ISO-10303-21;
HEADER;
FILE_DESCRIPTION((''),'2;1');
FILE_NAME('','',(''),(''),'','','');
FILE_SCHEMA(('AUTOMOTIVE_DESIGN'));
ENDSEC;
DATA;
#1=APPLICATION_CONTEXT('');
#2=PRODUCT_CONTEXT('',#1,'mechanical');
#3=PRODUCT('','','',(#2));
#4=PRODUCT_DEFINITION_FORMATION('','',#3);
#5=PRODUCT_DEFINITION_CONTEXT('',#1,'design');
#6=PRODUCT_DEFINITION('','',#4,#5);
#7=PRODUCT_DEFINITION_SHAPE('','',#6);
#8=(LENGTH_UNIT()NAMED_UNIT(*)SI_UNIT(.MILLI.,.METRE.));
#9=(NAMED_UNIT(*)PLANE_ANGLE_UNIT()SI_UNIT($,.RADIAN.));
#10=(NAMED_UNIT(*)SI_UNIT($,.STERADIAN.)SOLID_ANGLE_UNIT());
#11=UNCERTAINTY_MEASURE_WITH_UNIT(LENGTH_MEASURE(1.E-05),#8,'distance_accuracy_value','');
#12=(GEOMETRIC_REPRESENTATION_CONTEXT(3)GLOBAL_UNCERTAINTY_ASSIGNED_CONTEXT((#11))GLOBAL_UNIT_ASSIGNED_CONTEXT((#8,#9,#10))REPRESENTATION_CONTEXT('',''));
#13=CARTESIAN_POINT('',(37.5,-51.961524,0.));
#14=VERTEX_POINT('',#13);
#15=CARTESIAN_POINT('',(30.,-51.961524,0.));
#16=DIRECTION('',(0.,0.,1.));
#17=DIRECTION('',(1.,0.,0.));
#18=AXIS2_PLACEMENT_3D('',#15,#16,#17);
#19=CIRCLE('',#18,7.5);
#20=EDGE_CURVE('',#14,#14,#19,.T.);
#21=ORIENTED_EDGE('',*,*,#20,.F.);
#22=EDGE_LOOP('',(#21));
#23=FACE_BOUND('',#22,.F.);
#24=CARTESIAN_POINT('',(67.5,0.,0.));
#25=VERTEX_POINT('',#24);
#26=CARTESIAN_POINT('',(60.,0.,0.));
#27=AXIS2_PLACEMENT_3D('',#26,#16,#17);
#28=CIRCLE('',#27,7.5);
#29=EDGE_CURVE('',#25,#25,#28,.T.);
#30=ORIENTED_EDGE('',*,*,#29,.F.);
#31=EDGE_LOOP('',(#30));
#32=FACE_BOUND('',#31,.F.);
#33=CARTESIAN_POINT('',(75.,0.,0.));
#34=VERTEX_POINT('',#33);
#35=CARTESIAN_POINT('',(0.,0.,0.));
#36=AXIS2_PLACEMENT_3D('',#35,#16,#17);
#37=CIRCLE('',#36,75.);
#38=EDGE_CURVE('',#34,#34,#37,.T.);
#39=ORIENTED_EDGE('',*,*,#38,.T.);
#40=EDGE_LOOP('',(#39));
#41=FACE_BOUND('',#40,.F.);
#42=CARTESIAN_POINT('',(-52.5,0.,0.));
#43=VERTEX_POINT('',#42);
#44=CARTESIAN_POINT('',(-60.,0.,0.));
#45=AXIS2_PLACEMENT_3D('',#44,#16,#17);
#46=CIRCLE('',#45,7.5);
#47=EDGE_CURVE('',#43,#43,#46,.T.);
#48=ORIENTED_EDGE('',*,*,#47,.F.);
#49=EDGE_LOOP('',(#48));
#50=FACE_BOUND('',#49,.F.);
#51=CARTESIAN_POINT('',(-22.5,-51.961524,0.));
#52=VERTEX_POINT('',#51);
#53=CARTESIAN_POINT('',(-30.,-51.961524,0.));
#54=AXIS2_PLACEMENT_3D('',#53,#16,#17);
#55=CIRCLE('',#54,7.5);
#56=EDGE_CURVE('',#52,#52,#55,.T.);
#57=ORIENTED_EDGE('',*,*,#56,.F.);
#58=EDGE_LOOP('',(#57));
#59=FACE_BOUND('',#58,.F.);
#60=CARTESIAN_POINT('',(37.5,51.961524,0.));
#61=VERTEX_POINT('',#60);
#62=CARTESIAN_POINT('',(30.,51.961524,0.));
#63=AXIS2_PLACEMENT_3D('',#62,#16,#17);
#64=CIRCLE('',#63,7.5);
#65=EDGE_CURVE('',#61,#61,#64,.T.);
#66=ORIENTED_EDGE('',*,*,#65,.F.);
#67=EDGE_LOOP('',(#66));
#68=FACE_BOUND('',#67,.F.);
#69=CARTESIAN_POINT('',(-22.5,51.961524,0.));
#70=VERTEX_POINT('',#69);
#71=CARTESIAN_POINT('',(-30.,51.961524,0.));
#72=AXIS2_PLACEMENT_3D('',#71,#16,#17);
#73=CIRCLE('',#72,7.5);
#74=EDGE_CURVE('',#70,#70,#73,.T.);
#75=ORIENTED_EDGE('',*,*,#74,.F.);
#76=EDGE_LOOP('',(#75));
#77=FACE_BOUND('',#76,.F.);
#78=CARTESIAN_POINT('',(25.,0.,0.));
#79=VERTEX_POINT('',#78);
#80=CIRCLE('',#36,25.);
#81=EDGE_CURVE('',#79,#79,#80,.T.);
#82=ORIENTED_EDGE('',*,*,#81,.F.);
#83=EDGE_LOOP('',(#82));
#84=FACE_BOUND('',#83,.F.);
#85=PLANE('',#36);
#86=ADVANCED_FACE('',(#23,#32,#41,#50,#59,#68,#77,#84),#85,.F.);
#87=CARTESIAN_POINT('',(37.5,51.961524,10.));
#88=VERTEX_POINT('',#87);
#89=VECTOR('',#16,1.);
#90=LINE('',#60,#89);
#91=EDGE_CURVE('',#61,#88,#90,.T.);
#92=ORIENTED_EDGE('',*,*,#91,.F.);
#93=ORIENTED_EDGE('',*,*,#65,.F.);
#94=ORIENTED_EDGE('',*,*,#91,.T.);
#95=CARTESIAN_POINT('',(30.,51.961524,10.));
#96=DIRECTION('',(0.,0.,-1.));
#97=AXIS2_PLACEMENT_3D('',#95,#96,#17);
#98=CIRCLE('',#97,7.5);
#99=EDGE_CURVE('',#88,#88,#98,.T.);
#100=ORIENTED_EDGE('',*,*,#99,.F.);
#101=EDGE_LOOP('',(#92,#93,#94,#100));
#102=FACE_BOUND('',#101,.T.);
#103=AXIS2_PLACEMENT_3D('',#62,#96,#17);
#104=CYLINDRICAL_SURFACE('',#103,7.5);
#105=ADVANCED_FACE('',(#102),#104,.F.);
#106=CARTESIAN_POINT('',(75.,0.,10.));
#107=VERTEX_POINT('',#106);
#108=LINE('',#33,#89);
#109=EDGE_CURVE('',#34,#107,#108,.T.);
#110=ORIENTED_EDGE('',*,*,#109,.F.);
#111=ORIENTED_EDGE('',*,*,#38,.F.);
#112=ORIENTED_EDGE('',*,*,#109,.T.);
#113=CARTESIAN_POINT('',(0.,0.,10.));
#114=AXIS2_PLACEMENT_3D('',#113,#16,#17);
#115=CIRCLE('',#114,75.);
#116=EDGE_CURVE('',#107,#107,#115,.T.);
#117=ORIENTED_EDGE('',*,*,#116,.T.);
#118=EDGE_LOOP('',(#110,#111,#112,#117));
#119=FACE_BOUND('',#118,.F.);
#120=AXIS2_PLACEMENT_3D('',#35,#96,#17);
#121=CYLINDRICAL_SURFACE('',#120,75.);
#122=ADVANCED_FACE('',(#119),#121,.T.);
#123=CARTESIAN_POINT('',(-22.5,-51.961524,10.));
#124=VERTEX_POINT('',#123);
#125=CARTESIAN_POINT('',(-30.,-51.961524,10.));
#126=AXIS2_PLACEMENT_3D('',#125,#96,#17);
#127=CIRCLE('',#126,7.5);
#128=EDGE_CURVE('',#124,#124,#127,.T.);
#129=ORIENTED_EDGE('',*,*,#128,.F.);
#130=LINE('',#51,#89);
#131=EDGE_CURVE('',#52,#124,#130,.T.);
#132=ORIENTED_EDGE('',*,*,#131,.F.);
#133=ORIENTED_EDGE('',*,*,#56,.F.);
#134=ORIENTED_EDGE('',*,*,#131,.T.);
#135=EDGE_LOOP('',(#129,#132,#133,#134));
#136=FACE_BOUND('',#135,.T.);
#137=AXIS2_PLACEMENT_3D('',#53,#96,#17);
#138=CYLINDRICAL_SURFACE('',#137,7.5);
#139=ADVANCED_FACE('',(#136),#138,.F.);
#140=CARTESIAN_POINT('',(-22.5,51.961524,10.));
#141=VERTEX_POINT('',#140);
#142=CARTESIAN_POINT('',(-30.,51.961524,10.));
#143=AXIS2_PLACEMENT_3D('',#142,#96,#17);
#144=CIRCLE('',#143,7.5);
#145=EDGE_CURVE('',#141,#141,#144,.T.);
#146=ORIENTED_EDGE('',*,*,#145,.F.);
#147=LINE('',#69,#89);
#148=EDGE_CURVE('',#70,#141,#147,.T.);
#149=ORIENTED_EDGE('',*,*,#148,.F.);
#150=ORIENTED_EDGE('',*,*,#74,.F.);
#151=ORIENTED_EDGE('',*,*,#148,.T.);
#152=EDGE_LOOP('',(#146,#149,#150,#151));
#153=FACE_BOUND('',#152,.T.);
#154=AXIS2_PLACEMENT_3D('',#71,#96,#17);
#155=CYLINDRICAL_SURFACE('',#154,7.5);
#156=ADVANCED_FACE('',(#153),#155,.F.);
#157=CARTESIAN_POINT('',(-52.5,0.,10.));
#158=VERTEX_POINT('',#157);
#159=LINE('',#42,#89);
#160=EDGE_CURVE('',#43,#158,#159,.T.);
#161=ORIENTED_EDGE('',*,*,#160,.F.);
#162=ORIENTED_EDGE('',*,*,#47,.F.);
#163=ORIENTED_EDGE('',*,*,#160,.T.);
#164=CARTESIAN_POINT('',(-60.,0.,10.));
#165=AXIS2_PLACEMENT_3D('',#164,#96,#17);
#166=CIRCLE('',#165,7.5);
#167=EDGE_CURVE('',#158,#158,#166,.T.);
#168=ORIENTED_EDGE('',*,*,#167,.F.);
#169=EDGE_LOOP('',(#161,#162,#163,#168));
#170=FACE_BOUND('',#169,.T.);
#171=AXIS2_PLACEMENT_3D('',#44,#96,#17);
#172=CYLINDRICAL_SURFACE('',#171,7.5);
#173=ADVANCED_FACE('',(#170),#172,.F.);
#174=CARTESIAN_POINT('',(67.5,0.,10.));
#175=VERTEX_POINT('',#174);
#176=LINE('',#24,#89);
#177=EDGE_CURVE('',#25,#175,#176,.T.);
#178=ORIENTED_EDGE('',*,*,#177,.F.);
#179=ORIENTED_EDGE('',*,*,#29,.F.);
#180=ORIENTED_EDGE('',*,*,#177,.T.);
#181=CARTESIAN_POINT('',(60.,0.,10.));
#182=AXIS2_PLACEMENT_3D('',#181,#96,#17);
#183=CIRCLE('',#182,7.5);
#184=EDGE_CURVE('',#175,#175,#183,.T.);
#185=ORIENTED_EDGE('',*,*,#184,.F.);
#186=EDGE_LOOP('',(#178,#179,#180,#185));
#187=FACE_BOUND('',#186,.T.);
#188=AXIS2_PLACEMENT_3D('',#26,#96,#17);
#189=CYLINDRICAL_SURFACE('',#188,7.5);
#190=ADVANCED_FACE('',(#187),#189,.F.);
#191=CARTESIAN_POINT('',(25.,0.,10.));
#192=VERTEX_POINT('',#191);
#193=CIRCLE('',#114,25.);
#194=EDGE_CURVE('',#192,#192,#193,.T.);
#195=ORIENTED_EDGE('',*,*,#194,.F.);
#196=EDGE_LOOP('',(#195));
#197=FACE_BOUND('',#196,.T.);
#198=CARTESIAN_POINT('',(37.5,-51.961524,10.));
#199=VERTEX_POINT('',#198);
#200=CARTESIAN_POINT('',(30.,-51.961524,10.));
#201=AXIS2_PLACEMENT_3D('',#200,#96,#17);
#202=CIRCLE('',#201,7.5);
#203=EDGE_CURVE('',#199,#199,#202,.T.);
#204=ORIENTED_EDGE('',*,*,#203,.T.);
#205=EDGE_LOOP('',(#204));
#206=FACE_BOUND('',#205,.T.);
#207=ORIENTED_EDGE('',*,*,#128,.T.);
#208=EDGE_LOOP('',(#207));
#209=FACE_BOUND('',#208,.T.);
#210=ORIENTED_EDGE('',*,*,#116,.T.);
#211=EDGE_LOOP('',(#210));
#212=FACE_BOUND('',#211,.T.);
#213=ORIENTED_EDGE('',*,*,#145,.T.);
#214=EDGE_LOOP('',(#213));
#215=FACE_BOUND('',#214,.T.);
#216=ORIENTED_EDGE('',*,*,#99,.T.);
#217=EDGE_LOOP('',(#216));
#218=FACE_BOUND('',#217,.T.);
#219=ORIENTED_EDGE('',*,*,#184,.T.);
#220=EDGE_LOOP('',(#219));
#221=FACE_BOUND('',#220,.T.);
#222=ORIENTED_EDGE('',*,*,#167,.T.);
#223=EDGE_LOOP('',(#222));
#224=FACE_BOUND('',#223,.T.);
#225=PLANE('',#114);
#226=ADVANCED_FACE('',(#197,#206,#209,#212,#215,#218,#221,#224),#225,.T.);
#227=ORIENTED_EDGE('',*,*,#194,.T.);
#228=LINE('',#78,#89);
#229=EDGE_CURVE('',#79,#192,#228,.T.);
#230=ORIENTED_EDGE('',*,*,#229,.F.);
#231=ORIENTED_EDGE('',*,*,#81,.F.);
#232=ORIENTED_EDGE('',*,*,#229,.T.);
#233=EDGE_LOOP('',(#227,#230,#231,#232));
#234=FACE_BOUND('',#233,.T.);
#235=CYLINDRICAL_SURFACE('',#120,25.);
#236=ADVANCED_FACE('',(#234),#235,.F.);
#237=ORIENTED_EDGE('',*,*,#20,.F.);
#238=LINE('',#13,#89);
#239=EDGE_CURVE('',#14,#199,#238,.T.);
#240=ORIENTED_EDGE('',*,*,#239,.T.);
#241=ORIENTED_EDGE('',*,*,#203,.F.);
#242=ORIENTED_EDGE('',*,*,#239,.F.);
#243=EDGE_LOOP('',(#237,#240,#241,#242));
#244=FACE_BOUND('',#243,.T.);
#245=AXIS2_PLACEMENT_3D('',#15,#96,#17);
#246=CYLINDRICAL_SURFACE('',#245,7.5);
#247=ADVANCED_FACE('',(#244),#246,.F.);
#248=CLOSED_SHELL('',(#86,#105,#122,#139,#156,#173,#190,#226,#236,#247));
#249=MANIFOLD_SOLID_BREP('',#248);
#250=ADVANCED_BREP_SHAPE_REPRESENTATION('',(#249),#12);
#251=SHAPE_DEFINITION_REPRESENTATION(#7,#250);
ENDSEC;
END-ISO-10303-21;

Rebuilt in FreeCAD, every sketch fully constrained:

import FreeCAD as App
import Part
import Sketcher
from FreeCAD import Vector
Q = App.Units.Quantity

doc = App.newDocument("Part")
body = doc.addObject("PartDesign::Body", "Body")

sketch1 = body.newObject("Sketcher::SketchObject", "Sketch")
sketch1.AttachmentSupport = (doc.getObject("XY_Plane"), [""])
sketch1.MapMode = "FlatFace"
sketch1.addGeometry([
    Part.Circle(Vector(0, 0, 0), Vector(0, 0, 1), 75),
    Part.Circle(Vector(0, 0, 0), Vector(0, 0, 1), 25),
], False)
sketch1.addConstraint([
    Sketcher.Constraint("Coincident", 0, 3, -1, 1),
    Sketcher.Constraint("Coincident", 1, 3, -1, 1),
    Sketcher.Constraint("Diameter", 0, Q("150 mm")),
    Sketcher.Constraint("Diameter", 1, Q("50 mm")),
])
pad1 = body.newObject("PartDesign::Pad", "Pad")
pad1.Profile = sketch1
pad1.Length = 10

sketch2 = body.newObject("Sketcher::SketchObject", "Sketch001")
sketch2.AttachmentSupport = (doc.getObject("XY_Plane"), [""])
sketch2.MapMode = "FlatFace"
sketch2.addGeometry([
    Part.Circle(Vector(60, 0, 0), Vector(0, 0, 1), 8),
    Part.Circle(Vector(30, 52, 0), Vector(0, 0, 1), 8),
    Part.Circle(Vector(-30, 52, 0), Vector(0, 0, 1), 8),
    Part.Circle(Vector(-60, 0, 0), Vector(0, 0, 1), 8),
    Part.Circle(Vector(-30, -52, 0), Vector(0, 0, 1), 8),
    Part.Circle(Vector(30, -52, 0), Vector(0, 0, 1), 8),
], False)
sketch2.addConstraint([
    Sketcher.Constraint("Equal", 0, 1),
    Sketcher.Constraint("Equal", 1, 2),
    Sketcher.Constraint("Equal", 2, 3),
    Sketcher.Constraint("Equal", 3, 4),
    Sketcher.Constraint("Equal", 4, 5),
    Sketcher.Constraint("Symmetric", 0, 3, 3, 3, -1, 1),
    Sketcher.Constraint("Symmetric", 1, 3, 4, 3, -1, 1),
    Sketcher.Constraint("Symmetric", 2, 3, 5, 3, -1, 1),
    Sketcher.Constraint("Symmetric", 1, 3, 2, 3, -2),
    Sketcher.Constraint("PointOnObject", 0, 3, -1),
    Sketcher.Constraint("Diameter", 0, Q("15 mm")),
    Sketcher.Constraint("DistanceX", -1, 1, 0, 3, Q("60 mm")),
    Sketcher.Constraint("DistanceX", -1, 1, 1, 3, Q("30 mm")),
    Sketcher.Constraint("DistanceY", -1, 1, 1, 3, Q("51.961524 mm")),
])
pocket1 = body.newObject("PartDesign::Pocket", "Pocket")
pocket1.Profile = sketch2
pocket1.Length = 25
pocket1.Reversed = True

doc.recompute()
